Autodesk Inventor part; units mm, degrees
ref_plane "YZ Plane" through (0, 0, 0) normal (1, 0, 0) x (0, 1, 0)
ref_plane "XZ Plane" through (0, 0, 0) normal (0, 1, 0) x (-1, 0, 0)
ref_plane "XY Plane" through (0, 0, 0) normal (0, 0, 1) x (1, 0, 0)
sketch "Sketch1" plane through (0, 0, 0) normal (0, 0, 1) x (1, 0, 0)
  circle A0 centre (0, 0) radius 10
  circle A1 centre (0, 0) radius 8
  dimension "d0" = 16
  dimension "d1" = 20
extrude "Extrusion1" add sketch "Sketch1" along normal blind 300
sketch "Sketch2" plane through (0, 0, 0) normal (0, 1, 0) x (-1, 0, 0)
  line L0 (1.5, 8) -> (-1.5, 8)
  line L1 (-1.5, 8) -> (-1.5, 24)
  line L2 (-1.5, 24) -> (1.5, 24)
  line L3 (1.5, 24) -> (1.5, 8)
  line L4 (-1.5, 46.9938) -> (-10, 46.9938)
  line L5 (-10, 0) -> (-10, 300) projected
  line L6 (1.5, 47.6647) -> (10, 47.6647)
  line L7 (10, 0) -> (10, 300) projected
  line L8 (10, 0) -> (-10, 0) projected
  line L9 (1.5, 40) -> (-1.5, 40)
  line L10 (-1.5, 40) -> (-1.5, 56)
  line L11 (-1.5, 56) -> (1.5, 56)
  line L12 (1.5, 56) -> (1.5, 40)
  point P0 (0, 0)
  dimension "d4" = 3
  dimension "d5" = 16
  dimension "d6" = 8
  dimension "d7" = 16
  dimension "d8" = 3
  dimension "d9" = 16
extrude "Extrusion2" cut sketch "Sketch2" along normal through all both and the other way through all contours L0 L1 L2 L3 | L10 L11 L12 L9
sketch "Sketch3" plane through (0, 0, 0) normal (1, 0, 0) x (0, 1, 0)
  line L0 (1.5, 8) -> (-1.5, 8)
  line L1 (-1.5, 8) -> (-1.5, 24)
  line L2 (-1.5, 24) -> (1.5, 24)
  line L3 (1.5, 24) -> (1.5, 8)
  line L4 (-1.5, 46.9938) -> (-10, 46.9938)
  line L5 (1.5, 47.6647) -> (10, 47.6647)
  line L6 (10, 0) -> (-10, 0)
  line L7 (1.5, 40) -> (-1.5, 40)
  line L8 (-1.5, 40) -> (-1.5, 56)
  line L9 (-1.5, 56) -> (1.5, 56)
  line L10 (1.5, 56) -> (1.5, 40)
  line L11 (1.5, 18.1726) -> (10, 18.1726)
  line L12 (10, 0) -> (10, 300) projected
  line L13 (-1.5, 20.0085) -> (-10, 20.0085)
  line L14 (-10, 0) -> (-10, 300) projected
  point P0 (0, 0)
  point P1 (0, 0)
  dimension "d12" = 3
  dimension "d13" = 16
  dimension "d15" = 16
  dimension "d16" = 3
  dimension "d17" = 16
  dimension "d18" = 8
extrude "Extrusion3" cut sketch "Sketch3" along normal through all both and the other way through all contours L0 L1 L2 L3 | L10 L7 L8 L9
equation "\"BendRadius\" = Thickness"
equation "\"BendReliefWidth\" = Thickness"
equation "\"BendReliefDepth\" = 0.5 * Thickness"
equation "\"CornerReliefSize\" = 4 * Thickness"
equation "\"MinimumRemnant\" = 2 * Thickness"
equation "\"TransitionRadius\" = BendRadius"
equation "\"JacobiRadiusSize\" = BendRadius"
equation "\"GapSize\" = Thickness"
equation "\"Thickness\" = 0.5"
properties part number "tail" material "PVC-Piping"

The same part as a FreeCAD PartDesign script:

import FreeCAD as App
import Part
import Sketcher

V = App.Vector


def add_polygon(sketch, points):
    """Adds a closed chain of lines whose ends are joined by coincident constraints."""
    first, n = sketch.GeometryCount, len(points)
    for a, b in zip(points, points[1:] + points[:1]):
        sketch.addGeometry(Part.LineSegment(App.Vector(*a, 0), App.Vector(*b, 0)), False)
    for i in range(n):
        sketch.addConstraint(Sketcher.Constraint("Coincident", first + i, 2, first + (i + 1) % n, 1))

doc = App.newDocument("Part")
body = doc.addObject("PartDesign::Body", "Body")

# Sketch on XY plane
sketch1 = body.newObject("Sketcher::SketchObject", "Sketch")
sketch1.AttachmentSupport = (doc.getObject("XY_Plane"), [""])
sketch1.MapMode = "FlatFace"
sketch1.addGeometry([
    Part.Circle(V(0, 0, 0), V(0, 0, 1), 10),
    Part.Circle(V(0, 0, 0), V(0, 0, 1), 8),
], False)
sketch1.addConstraint([
    Sketcher.Constraint("Coincident", 0, 3, -1, 1),
    Sketcher.Constraint("Coincident", 1, 3, -1, 1),
    Sketcher.Constraint("Diameter", 0, 20.0),
    Sketcher.Constraint("Diameter", 1, 16.0),
])
pad1 = body.newObject("PartDesign::Pad", "Pad")
pad1.Profile = sketch1
pad1.Length = 300

# Sketch on XZ plane
sketch2 = body.newObject("Sketcher::SketchObject", "Sketch001")
sketch2.AttachmentSupport = (doc.getObject("XZ_Plane"), [""])
sketch2.MapMode = "FlatFace"
add_polygon(sketch2, [(1.5, 8), (-1.5, 8), (-1.5, 24), (1.5, 24)])  # lines 0-3
add_polygon(sketch2, [(1.5, 56), (1.5, 40), (-1.5, 40), (-1.5, 56)])  # lines 4-7
sketch2.addConstraint([
    Sketcher.Constraint("Horizontal", 0),
    Sketcher.Constraint("Vertical", 1),
    Sketcher.Constraint("Horizontal", 2),
    Sketcher.Constraint("Vertical", 3),
    Sketcher.Constraint("Vertical", 4),
    Sketcher.Constraint("Horizontal", 5),
    Sketcher.Constraint("Vertical", 6),
    Sketcher.Constraint("Horizontal", 7),
    Sketcher.Constraint("Vertical", 3, 2, 4, 2),
    Sketcher.Constraint("Vertical", 1, 2, 5, 2),
    Sketcher.Constraint("Equal", 3, 4),
    Sketcher.Constraint("DistanceX", 0, 2, 0, 1, 3.0),
    Sketcher.Constraint("DistanceY", 1, 1, 1, 2, 16.0),
    Sketcher.Constraint("DistanceY", -1, 1, 0, 2, 8.0),
    Sketcher.Constraint("DistanceY", 2, 2, 4, 2, 16.0),
    Sketcher.Constraint("DistanceX", 0, 2, -1, 1, 1.5),
])
pocket1 = body.newObject("PartDesign::Pocket", "Pocket")
pocket1.Profile = sketch2
pocket1.Type = "ThroughAll"
pocket1.Midplane = True

# Sketch on YZ plane
sketch3 = body.newObject("Sketcher::SketchObject", "Sketch002")
sketch3.AttachmentSupport = (doc.getObject("YZ_Plane"), [""])
sketch3.MapMode = "FlatFace"
add_polygon(sketch3, [(-1.5, 8), (1.5, 8), (1.5, 24), (-1.5, 24)])  # lines 0-3
add_polygon(sketch3, [(1.5, 40), (1.5, 56), (-1.5, 56), (-1.5, 40)])  # lines 4-7
sketch3.addConstraint([
    Sketcher.Constraint("Horizontal", 0),
    Sketcher.Constraint("Vertical", 1),
    Sketcher.Constraint("Horizontal", 2),
    Sketcher.Constraint("Vertical", 3),
    Sketcher.Constraint("Vertical", 4),
    Sketcher.Constraint("Horizontal", 5),
    Sketcher.Constraint("Vertical", 6),
    Sketcher.Constraint("Horizontal", 7),
    Sketcher.Constraint("Vertical", 1, 2, 4, 2),
    Sketcher.Constraint("Vertical", 3, 2, 5, 2),
    Sketcher.Constraint("Equal", 3, 4),
    Sketcher.Constraint("DistanceX", 0, 1, 0, 2, 3.0),
    Sketcher.Constraint("DistanceY", 1, 1, 1, 2, 16.0),
    Sketcher.Constraint("DistanceY", -1, 1, 0, 2, 8.0),
    Sketcher.Constraint("DistanceY", 2, 2, 6, 2, 16.0),
    Sketcher.Constraint("DistanceX", -1, 1, 0, 2, 1.5),
])
pocket2 = body.newObject("PartDesign::Pocket", "Pocket001")
pocket2.Profile = sketch3
pocket2.Type = "ThroughAll"
pocket2.Midplane = True

doc.recompute()
